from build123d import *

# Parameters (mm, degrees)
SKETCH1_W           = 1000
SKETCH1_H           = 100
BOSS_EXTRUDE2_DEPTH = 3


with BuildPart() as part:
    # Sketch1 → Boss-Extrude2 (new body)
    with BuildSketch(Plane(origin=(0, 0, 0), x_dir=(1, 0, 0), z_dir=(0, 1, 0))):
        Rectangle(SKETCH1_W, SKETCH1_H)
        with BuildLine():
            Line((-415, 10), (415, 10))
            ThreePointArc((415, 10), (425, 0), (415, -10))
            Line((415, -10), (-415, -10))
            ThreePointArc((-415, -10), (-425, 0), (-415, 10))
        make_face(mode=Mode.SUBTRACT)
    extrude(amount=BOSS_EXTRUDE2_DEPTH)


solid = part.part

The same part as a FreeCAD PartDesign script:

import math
import FreeCAD as App
import Part
import Sketcher

V = App.Vector

doc = App.newDocument("Part")
body = doc.addObject("PartDesign::Body", "Body")

# Sketch on XZ plane
sketch1 = body.newObject("Sketcher::SketchObject", "Sketch")
sketch1.AttachmentSupport = (doc.getObject("XZ_Plane"), [""])
sketch1.MapMode = "FlatFace"
sketch1.addGeometry(Part.LineSegment(V(-500, -50, 0), V(-500, 50, 0)), False)
sketch1.addGeometry(Part.LineSegment(V(-500, 50, 0), V(500, 50, 0)), False)
sketch1.addGeometry(Part.LineSegment(V(500, 50, 0), V(500, -50, 0)), False)
sketch1.addGeometry(Part.LineSegment(V(500, -50, 0), V(-500, -50, 0)), False)
sketch1.addGeometry(Part.ArcOfCircle(Part.Circle(V(-415, 0, 0), V(0, 0, 1), 10), math.radians(90), math.radians(270)), False)
sketch1.addGeometry(Part.LineSegment(V(-415, -10, 0), V(415, -10, 0)), False)
sketch1.addGeometry(Part.ArcOfCircle(Part.Circle(V(415, 0, 0), V(0, 0, 1), 10), math.radians(-90), math.radians(90)), False)
sketch1.addGeometry(Part.LineSegment(V(415, 10, 0), V(-415, 10, 0)), False)
sketch1.addConstraint(Sketcher.Constraint("Coincident", 0, 2, 1, 1))
sketch1.addConstraint(Sketcher.Constraint("Coincident", 1, 2, 2, 1))
sketch1.addConstraint(Sketcher.Constraint("Coincident", 2, 2, 3, 1))
sketch1.addConstraint(Sketcher.Constraint("Coincident", 3, 2, 0, 1))
sketch1.addConstraint(Sketcher.Constraint("Tangent", 4, 2, 5, 1))
sketch1.addConstraint(Sketcher.Constraint("Tangent", 5, 2, 6, 1))
sketch1.addConstraint(Sketcher.Constraint("Tangent", 6, 2, 7, 1))
sketch1.addConstraint(Sketcher.Constraint("Tangent", 7, 2, 4, 1))
sketch1.addConstraint(Sketcher.Constraint("Vertical", 0))
sketch1.addConstraint(Sketcher.Constraint("Horizontal", 1))
sketch1.addConstraint(Sketcher.Constraint("Vertical", 2))
sketch1.addConstraint(Sketcher.Constraint("Horizontal", 3))
sketch1.addConstraint(Sketcher.Constraint("Horizontal", 5))
sketch1.addConstraint(Sketcher.Constraint("Horizontal", 7))
sketch1.addConstraint(Sketcher.Constraint("Symmetric", 4, 3, 6, 3, -1, 1))
sketch1.addConstraint(Sketcher.Constraint("Symmetric", 0, 2, 2, 2, -1, 1))
sketch1.addConstraint(Sketcher.Constraint("Radius", 4, 10.0))
sketch1.addConstraint(Sketcher.Constraint("DistanceX", 1, 1, 1, 2, 1000.0))
sketch1.addConstraint(Sketcher.Constraint("DistanceX", 5, 1, 5, 2, 830.0))
sketch1.addConstraint(Sketcher.Constraint("DistanceY", 0, 1, 0, 2, 100.0))
pad1 = body.newObject("PartDesign::Pad", "Pad")
pad1.Profile = sketch1
pad1.Length = 3
pad1.Reversed = True

doc.recompute()
